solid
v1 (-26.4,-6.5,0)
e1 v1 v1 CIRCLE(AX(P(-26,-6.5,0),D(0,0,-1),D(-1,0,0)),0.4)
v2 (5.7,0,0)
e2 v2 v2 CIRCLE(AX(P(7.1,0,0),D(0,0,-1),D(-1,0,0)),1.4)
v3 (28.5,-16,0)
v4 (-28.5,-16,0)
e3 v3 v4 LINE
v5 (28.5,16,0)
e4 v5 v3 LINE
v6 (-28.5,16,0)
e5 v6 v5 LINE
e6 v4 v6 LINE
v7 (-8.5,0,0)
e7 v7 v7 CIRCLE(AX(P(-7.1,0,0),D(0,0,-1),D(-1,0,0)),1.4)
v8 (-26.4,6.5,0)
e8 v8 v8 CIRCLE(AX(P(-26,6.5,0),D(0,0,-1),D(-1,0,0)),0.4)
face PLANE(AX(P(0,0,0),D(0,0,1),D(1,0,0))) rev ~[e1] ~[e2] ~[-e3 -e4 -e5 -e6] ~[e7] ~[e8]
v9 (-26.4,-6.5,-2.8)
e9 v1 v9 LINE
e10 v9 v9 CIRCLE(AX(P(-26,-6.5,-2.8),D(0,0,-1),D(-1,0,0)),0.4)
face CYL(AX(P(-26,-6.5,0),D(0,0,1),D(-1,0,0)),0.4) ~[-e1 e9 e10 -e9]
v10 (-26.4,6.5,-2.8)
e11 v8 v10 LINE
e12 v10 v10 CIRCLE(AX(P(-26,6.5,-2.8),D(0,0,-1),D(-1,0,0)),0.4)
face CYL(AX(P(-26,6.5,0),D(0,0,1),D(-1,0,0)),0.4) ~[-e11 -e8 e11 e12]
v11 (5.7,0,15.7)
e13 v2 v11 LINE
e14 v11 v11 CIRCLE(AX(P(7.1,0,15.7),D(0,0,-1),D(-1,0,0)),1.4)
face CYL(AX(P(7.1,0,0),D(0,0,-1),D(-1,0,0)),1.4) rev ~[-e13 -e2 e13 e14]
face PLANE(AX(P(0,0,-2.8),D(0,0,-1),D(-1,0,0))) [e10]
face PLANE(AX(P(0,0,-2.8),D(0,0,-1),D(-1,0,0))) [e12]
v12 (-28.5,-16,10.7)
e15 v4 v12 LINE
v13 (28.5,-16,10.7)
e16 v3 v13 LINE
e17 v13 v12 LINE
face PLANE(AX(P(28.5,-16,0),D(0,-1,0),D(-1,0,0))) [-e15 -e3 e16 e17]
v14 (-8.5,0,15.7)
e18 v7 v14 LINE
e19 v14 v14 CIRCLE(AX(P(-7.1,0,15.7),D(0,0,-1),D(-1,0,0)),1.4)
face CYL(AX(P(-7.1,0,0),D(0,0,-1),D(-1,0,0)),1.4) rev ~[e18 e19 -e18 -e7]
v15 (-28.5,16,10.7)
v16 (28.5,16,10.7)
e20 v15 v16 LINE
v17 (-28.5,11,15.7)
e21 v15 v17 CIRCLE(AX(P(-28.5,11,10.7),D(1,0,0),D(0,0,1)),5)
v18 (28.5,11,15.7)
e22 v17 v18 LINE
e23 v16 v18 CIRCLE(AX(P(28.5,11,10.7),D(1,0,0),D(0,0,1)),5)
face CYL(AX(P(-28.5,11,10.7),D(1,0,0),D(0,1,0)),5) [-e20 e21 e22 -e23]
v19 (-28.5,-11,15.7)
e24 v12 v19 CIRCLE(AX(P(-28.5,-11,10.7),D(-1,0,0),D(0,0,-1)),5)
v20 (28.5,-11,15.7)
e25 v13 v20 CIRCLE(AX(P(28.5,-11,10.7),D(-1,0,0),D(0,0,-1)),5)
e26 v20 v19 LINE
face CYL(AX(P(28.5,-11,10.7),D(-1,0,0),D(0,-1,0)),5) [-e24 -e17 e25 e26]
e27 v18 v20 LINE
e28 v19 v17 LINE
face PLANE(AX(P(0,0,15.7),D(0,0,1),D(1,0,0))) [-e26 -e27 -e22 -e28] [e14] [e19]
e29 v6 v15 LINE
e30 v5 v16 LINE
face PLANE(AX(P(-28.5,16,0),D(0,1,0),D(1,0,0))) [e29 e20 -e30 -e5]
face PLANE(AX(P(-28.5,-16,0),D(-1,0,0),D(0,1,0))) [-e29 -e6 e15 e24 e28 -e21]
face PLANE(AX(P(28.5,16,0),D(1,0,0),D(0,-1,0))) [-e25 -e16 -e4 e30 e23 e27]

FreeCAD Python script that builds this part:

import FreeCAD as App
import Part
import Sketcher


def edges_at(feature, points):
    """Names of the edges that pass closest to the given points."""
    edges = feature.Shape.Edges
    near = lambda p: min(range(len(edges)), key=lambda i: edges[i].distToShape(Part.Vertex(*p))[0])
    return sorted({f"Edge{near(p) + 1}" for p in points})


def add_polygon(sketch, points):
    """Adds a closed chain of lines whose ends are joined by coincident constraints."""
    first, n = sketch.GeometryCount, len(points)
    for a, b in zip(points, points[1:] + points[:1]):
        sketch.addGeometry(Part.LineSegment(App.Vector(*a, 0), App.Vector(*b, 0)), False)
    for i in range(n):
        sketch.addConstraint(Sketcher.Constraint("Coincident", first + i, 2, first + (i + 1) % n, 1))

doc = App.newDocument("Part")
params = doc.addObject("Spreadsheet::Sheet", "Params")
for row, (alias, value) in enumerate([
    ("sketch1_width", "57 mm"),
    ("sketch1_height", "32 mm"),
    ("pad1_length", "15.7 mm"),
    ("fillet_radius", "5 mm"),
    ("sketch2_diameter", "0.8 mm"),
    ("pad2_length", "2.8 mm"),
    ("sketch3_diameter", "2.8 mm"),
], start=1):
    params.set(f"A{row}", alias)
    params.set(f"B{row}", "=" + value)
    params.setAlias(f"B{row}", alias)

body = doc.addObject("PartDesign::Body", "Body")

# Sketch on XY plane
sketch1 = body.newObject("Sketcher::SketchObject", "Sketch")
sketch1.AttachmentSupport = (doc.getObject("XY_Plane"), [""])
sketch1.MapMode = "FlatFace"
add_polygon(sketch1, [(28, 16), (-28, 16), (-28, -16), (28, -16)])  # lines 0-3
sketch1.addConstraint([
    Sketcher.Constraint("Horizontal", 0),
    Sketcher.Constraint("Vertical", 1),
    Sketcher.Constraint("Horizontal", 2),
    Sketcher.Constraint("Vertical", 3),
    Sketcher.Constraint("Symmetric", 0, 2, 2, 2, -1, 1),
    Sketcher.Constraint("DistanceX", 0, 2, 0, 1, 57.0),
    Sketcher.Constraint("DistanceY", 1, 2, 1, 1, 32.0),
])
sketch1.setExpression("Constraints[9]", "Params.sketch1_width")
sketch1.setExpression("Constraints[10]", "Params.sketch1_height")
pad1 = body.newObject("PartDesign::Pad", "Pad")
pad1.Profile = sketch1
pad1.setExpression("Length", "Params.pad1_length")
doc.recompute()

fillet = body.newObject("PartDesign::Fillet", "Fillet")
fillet.Base = (pad1, edges_at(pad1, [(0, 16, 15.7), (0, -16, 15.7)]))
fillet.setExpression("Radius", "Params.fillet_radius")

# Sketch on XY plane
sketch2 = body.newObject("Sketcher::SketchObject", "Sketch001")
sketch2.AttachmentSupport = (doc.getObject("XY_Plane"), [""])
sketch2.MapMode = "FlatFace"
sketch2.addGeometry([
    Part.Circle(App.Vector(-26, 6.5, 0), App.Vector(0, 0, 1), 0.4),
    Part.Circle(App.Vector(-26, -6.5, 0), App.Vector(0, 0, 1), 0.4),
], False)
sketch2.addConstraint([
    Sketcher.Constraint("Equal", 0, 1),
    Sketcher.Constraint("Symmetric", 0, 3, 1, 3, -1),
    Sketcher.Constraint("Diameter", 0, 0.8),
    Sketcher.Constraint("DistanceY", 1, 3, 0, 3, 13.0),
    Sketcher.Constraint("DistanceX", 0, 3, -1, 1, 26.0),
])
sketch2.setExpression("Constraints[2]", "Params.sketch2_diameter")
pad2 = body.newObject("PartDesign::Pad", "Pad001")
pad2.Profile = sketch2
pad2.setExpression("Length", "Params.pad2_length")
pad2.Reversed = True

# Sketch on XY plane
sketch3 = body.newObject("Sketcher::SketchObject", "Sketch002")
sketch3.AttachmentSupport = (doc.getObject("XY_Plane"), [""])
sketch3.MapMode = "FlatFace"
sketch3.addGeometry([
    Part.Circle(App.Vector(7.1, 0, 0), App.Vector(0, 0, 1), 1.4),
    Part.Circle(App.Vector(-7.1, 0, 0), App.Vector(0, 0, 1), 1.4),
], False)
sketch3.addConstraint([
    Sketcher.Constraint("Equal", 0, 1),
    Sketcher.Constraint("Symmetric", 0, 3, 1, 3, -1, 1),
    Sketcher.Constraint("PointOnObject", 0, 3, -1),
    Sketcher.Constraint("Diameter", 0, 2.8),
    Sketcher.Constraint("DistanceX", -1, 1, 0, 3, 7.1),
])
sketch3.setExpression("Constraints[3]", "Params.sketch3_diameter")
pocket1 = body.newObject("PartDesign::Pocket", "Pocket")
pocket1.Profile = sketch3
pocket1.Type = "ThroughAll"
pocket1.Reversed = True

doc.recompute()
